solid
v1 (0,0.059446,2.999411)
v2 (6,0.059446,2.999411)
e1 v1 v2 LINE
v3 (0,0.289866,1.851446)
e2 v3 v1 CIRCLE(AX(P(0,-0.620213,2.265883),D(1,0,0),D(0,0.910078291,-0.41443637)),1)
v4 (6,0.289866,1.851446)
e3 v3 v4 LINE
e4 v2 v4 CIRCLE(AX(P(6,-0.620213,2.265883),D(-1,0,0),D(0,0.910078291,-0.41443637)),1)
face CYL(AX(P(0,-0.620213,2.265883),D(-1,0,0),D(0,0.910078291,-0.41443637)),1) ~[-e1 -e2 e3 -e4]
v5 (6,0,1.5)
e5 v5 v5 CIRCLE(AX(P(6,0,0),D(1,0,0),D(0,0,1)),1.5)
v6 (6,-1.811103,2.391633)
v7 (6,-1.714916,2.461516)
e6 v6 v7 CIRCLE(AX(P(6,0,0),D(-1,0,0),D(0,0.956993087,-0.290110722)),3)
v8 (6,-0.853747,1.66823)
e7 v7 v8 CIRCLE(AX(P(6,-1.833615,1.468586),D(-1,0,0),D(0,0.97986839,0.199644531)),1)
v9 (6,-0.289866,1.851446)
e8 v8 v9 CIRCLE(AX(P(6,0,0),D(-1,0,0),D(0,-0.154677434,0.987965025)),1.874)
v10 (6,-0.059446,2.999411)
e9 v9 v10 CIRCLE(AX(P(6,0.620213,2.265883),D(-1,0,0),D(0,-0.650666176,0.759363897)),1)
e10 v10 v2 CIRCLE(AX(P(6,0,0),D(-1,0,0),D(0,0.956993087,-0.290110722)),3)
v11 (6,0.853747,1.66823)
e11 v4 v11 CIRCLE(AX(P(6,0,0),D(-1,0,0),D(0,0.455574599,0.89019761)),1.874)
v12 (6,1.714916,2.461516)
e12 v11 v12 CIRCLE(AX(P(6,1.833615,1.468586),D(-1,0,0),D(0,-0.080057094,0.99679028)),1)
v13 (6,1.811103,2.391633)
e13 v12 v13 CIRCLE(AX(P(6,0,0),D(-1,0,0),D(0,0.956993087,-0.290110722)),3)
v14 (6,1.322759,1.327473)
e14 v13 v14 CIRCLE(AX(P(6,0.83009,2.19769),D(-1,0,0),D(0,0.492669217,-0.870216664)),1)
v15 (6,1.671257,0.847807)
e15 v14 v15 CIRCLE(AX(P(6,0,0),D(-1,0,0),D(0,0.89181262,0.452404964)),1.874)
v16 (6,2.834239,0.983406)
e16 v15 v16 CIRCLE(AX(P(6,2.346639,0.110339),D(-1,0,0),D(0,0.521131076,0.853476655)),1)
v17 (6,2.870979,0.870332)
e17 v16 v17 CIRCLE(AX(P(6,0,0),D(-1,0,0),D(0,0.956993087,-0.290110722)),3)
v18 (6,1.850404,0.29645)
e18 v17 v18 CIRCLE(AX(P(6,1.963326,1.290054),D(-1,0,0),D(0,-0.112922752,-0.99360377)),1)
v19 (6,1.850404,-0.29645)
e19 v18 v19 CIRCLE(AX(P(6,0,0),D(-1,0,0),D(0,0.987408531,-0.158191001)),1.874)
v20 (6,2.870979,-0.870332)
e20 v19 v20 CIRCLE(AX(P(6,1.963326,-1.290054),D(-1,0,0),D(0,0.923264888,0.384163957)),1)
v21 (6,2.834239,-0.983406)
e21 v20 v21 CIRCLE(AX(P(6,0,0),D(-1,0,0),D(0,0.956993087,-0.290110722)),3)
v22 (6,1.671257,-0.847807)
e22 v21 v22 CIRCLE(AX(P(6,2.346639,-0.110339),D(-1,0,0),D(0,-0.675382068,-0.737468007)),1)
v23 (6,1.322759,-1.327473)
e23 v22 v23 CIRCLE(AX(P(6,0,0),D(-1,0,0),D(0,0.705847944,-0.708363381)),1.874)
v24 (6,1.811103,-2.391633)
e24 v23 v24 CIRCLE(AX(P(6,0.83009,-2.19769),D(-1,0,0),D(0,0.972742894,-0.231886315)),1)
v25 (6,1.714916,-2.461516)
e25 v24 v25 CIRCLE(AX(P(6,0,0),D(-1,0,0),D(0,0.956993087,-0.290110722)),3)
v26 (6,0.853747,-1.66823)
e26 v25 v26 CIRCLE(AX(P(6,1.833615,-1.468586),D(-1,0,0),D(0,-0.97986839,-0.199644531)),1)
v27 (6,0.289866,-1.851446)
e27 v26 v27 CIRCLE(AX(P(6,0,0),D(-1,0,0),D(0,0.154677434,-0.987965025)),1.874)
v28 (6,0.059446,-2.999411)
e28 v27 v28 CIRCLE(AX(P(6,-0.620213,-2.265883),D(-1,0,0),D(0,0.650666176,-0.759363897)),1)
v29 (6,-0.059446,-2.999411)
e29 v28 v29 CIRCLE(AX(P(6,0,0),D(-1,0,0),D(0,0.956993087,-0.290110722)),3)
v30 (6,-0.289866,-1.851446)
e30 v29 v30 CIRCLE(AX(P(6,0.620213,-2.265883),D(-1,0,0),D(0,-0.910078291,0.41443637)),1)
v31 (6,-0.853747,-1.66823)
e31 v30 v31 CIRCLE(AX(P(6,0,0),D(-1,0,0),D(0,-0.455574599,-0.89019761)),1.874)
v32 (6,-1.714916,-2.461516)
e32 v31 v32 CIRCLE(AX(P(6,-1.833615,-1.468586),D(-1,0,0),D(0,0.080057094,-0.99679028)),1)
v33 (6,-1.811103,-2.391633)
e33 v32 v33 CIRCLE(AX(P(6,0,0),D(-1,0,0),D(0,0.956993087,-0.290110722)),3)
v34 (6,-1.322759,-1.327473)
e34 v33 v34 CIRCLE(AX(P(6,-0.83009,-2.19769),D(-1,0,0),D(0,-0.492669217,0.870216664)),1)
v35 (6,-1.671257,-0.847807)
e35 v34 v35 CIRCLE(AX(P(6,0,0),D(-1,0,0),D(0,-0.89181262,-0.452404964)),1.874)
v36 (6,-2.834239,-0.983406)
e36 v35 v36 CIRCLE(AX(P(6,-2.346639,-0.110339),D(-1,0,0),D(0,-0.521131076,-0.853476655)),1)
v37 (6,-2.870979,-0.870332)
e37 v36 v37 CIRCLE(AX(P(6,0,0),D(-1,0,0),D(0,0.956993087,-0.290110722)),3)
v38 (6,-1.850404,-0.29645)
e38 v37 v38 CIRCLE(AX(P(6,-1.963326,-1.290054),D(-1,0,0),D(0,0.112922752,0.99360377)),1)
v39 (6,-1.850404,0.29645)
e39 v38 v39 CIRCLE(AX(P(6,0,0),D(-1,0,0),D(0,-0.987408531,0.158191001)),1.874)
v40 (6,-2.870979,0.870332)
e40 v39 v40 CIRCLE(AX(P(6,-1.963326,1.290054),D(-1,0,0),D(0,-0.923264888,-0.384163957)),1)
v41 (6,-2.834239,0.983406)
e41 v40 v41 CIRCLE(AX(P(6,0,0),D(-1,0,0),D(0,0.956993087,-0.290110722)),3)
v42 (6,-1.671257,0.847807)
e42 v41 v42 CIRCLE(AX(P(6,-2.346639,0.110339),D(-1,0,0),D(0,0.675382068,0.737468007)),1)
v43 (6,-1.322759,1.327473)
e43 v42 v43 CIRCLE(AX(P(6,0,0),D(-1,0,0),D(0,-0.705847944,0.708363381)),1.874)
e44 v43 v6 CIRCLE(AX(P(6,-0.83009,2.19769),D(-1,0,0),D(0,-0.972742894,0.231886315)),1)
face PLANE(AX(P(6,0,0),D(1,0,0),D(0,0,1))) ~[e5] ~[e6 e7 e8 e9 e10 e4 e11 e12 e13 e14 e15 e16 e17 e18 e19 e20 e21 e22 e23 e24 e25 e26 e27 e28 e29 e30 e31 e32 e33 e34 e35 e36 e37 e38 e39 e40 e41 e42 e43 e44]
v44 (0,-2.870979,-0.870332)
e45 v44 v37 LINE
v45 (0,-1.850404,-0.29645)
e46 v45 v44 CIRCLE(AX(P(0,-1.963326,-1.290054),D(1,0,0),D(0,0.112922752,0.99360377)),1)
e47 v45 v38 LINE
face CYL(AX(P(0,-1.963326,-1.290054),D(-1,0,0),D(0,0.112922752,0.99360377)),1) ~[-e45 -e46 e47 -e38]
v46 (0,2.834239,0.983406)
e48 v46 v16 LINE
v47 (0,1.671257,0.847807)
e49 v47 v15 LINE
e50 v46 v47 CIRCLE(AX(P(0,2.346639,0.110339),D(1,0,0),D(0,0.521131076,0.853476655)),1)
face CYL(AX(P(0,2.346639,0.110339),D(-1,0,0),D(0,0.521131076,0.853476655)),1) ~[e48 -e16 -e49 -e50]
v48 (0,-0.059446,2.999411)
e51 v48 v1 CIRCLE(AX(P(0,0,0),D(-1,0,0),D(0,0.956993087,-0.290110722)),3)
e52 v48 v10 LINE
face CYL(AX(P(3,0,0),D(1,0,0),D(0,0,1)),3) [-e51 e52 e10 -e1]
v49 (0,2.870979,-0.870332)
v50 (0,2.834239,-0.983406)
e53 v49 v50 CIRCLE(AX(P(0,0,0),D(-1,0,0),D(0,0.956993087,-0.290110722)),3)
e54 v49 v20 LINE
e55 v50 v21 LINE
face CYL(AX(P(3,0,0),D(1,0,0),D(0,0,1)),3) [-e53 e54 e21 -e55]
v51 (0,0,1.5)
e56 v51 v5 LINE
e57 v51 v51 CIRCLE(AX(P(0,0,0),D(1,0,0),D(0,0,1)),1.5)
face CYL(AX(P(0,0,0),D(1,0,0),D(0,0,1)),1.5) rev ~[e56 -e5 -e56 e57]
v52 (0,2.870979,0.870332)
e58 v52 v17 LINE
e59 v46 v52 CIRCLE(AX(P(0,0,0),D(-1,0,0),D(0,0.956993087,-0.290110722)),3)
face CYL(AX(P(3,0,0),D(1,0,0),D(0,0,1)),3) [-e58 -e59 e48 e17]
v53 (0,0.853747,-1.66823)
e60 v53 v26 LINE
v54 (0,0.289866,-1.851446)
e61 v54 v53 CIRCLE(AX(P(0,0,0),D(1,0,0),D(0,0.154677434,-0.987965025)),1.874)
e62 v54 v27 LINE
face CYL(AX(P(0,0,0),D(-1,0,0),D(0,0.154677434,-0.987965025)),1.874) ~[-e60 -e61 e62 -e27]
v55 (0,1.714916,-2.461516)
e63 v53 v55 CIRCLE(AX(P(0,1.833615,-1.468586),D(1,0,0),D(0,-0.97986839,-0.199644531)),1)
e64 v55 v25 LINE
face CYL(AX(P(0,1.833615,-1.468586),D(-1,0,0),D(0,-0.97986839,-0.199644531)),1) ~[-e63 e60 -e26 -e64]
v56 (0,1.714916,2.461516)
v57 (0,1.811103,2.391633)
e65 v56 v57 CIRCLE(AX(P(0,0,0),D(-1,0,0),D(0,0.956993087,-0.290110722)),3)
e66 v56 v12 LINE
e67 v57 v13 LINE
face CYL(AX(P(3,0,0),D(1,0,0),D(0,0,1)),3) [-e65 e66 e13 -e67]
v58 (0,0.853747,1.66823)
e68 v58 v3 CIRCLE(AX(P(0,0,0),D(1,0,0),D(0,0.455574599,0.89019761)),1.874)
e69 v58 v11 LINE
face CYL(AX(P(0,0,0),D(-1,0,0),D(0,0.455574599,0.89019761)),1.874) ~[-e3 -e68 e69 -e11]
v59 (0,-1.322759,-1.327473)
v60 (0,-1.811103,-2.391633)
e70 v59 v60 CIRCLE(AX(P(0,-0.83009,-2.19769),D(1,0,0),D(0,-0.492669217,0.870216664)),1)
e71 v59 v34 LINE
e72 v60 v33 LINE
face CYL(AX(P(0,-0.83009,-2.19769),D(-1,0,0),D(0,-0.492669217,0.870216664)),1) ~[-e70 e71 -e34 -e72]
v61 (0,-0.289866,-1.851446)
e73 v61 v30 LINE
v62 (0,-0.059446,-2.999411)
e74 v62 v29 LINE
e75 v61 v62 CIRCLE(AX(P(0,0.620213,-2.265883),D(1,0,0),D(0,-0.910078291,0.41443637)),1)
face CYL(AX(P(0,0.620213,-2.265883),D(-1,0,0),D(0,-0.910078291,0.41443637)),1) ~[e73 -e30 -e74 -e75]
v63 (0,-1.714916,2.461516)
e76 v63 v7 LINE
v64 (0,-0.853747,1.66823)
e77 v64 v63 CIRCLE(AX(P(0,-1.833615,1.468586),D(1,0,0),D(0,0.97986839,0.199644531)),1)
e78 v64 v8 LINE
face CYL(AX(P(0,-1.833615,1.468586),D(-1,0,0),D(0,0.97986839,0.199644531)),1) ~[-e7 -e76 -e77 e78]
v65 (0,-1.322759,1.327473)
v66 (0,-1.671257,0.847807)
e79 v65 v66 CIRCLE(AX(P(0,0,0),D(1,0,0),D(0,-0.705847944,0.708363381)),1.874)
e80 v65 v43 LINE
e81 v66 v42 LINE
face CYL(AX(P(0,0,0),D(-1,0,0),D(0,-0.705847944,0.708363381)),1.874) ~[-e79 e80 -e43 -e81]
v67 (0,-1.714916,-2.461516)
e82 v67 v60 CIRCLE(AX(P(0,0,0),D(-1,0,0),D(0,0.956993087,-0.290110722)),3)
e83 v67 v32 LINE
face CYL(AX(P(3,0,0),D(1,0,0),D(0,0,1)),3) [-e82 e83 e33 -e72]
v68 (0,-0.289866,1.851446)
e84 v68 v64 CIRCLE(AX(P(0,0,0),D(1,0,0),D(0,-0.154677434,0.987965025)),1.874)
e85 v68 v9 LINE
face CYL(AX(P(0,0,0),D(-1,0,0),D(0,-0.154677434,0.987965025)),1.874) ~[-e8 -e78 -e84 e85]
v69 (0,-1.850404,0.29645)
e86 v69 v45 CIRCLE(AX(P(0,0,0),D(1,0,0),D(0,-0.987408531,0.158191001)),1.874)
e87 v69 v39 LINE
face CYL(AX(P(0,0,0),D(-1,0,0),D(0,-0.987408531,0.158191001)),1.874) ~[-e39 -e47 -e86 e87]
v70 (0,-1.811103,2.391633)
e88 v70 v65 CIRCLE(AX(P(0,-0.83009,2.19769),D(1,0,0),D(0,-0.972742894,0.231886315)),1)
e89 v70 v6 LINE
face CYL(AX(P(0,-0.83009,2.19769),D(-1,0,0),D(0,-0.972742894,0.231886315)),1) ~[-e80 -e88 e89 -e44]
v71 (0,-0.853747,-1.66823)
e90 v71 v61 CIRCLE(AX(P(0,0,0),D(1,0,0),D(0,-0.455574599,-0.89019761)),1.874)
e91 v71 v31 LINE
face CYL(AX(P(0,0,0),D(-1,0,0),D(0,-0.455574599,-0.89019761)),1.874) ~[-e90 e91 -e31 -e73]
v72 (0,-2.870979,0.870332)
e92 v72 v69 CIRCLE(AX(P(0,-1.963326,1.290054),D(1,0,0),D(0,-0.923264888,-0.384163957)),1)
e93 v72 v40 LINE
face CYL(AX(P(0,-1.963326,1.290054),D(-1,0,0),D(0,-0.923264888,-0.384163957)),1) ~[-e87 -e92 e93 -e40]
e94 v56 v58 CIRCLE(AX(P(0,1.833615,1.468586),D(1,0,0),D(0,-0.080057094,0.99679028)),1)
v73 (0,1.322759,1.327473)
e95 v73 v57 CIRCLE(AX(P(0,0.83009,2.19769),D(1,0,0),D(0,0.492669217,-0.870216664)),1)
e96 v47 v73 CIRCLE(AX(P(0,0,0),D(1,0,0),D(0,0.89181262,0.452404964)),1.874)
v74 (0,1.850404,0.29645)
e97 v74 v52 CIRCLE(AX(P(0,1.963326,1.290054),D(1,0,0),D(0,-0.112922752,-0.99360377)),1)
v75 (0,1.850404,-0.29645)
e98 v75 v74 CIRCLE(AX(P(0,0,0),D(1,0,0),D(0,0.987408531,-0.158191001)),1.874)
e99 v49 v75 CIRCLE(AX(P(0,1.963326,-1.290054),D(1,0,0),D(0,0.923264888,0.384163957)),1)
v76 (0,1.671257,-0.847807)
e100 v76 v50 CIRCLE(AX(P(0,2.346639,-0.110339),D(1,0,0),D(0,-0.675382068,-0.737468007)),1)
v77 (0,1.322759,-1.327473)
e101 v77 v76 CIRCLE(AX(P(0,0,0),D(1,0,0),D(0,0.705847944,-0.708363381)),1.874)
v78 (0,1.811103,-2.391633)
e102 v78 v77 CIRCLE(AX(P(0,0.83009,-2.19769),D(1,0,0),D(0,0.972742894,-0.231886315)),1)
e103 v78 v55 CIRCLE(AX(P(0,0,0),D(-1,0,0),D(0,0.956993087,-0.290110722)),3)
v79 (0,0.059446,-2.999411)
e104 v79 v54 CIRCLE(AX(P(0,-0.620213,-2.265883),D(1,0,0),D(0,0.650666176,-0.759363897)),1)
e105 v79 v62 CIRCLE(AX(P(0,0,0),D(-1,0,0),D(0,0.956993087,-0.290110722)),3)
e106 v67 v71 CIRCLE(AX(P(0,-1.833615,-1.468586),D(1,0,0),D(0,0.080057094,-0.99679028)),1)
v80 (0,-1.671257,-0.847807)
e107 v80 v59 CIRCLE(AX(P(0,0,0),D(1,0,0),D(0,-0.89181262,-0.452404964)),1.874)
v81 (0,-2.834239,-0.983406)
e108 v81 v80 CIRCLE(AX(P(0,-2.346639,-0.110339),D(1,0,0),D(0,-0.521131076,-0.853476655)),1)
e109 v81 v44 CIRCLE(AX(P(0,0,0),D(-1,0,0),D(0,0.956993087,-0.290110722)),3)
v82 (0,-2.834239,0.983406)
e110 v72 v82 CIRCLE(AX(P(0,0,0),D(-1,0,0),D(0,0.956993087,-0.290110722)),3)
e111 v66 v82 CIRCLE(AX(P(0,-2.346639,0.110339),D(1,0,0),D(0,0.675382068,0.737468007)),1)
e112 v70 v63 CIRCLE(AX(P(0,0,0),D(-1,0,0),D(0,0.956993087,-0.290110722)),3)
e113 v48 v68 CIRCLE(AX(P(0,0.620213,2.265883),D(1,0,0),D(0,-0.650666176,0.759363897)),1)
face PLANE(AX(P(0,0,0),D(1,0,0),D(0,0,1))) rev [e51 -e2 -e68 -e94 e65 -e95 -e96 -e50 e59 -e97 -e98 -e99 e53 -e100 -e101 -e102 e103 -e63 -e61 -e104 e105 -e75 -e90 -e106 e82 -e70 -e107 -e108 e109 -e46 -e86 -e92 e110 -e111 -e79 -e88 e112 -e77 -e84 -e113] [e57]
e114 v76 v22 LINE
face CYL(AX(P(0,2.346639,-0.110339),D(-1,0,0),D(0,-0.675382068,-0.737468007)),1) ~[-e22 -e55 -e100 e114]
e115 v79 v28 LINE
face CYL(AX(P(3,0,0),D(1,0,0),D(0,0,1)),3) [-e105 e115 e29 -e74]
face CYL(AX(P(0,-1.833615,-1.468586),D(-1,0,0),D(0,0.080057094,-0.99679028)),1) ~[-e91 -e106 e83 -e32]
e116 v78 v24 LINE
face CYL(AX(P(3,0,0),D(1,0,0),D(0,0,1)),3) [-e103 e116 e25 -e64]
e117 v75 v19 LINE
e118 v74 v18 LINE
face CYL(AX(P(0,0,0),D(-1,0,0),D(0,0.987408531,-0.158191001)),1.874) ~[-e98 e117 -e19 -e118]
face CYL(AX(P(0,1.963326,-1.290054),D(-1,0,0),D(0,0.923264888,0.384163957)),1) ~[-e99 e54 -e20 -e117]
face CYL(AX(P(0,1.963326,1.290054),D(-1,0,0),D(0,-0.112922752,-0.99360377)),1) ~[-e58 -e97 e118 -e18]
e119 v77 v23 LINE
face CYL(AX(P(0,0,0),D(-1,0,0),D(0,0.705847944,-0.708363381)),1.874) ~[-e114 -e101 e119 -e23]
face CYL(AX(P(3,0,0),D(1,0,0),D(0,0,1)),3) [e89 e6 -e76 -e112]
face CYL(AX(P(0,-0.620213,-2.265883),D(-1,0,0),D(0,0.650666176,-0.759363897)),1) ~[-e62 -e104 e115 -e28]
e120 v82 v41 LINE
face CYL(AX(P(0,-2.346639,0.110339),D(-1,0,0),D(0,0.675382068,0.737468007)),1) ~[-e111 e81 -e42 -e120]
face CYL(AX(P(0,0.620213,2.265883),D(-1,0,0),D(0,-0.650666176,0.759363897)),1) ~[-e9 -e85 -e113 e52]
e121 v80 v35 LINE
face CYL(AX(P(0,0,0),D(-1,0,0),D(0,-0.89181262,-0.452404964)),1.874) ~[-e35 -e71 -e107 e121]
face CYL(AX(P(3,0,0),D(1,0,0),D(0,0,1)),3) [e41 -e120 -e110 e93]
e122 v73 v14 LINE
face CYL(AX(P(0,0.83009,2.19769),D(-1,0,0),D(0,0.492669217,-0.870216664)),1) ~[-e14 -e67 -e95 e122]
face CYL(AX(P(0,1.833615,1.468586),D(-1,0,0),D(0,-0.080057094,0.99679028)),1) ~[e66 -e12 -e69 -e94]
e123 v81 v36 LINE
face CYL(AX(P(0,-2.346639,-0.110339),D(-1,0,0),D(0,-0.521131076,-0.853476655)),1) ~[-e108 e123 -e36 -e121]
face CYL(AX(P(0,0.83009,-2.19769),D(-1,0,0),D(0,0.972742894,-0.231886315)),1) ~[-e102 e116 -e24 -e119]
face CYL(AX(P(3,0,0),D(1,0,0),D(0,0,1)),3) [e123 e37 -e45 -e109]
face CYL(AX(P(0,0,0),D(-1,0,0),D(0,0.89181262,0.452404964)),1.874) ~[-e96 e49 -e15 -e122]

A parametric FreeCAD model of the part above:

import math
import FreeCAD as App
import Part
import Sketcher
Q = App.Units.Quantity


def add_polygon(sketch, points):
    """Adds a closed chain of lines whose ends are joined by coincident constraints."""
    first, n = sketch.GeometryCount, len(points)
    for a, b in zip(points, points[1:] + points[:1]):
        sketch.addGeometry(Part.LineSegment(App.Vector(*a, 0), App.Vector(*b, 0)), False)
    for i in range(n):
        sketch.addConstraint(Sketcher.Constraint("Coincident", first + i, 2, first + (i + 1) % n, 1))

doc = App.newDocument("Part")
body = doc.addObject("PartDesign::Body", "Body")

# Sketch on XZ plane
sketch1 = doc.addObject("Sketcher::SketchObject", "Sketch")
body.addObject(sketch1)
sketch1.AttachmentSupport = (doc.XZ_Plane, [""])
sketch1.MapMode = "FlatFace"
add_polygon(sketch1, [(0, -3), (0, 0), (6, 0), (6, -3)])  # lines 0-3
sketch1.addConstraint([
    Sketcher.Constraint("Vertical", 0),
    Sketcher.Constraint("Horizontal", 1),
    Sketcher.Constraint("Vertical", 2),
    Sketcher.Constraint("Horizontal", 3),
    Sketcher.Constraint("Coincident", 0, 2, -1, 1),
    Sketcher.Constraint("DistanceX", 1, 1, 1, 2, Q("6 mm")),
    Sketcher.Constraint("DistanceY", 0, 1, 0, 2, Q("3 mm")),
])
revolution = doc.addObject("PartDesign::Revolution", "Revolution")
body.addObject(revolution)
revolution.Profile = sketch1
revolution.ReferenceAxis = (sketch1, ["H_Axis"])
revolution.Angle = 360

# Sketch on YZ plane
sketch2 = doc.addObject("Sketcher::SketchObject", "Sketch001")
body.addObject(sketch2)
sketch2.AttachmentSupport = (doc.YZ_Plane, [""])
sketch2.MapMode = "FlatFace"
sketch2.addGeometry([
    Part.ArcOfCircle(Part.Circle(App.Vector(0, 0, 0), App.Vector(0, 0, 1), 1.9), math.radians(-9.1), math.radians(9.1)),
    Part.ArcOfCircle(Part.Circle(App.Vector(2, -1.3, 0), App.Vector(0, 0, 1), 1), math.radians(23), math.radians(96)),
    Part.ArcOfCircle(Part.Circle(App.Vector(0, 0, 0), App.Vector(0, 0, 1), 3), math.radians(-17), math.radians(17)),
    Part.ArcOfCircle(Part.Circle(App.Vector(2, 1.3, 0), App.Vector(0, 0, 1), 1), math.radians(-96), math.radians(-23)),
], False)
sketch2.addConstraint([
    Sketcher.Constraint("Coincident", 0, 1, 1, 2),
    Sketcher.Constraint("Coincident", 1, 1, 2, 1),
    Sketcher.Constraint("Coincident", 2, 2, 3, 2),
    Sketcher.Constraint("Coincident", 3, 1, 0, 2),
    Sketcher.Constraint("Coincident", 0, 3, -1, 1),
    Sketcher.Constraint("Coincident", 2, 3, -1, 1),
    Sketcher.Constraint("Equal", 1, 3),
    Sketcher.Constraint("Symmetric", 1, 3, 3, 3, -1),
    Sketcher.Constraint("Radius", 1, Q("1 mm")),
    Sketcher.Constraint("Radius", 0, Q("1.874 mm")),
    Sketcher.Constraint("Radius", 2, Q("3.0254 mm")),
    Sketcher.Constraint("DistanceY", 0, 1, 3, 1, Q("0.5929 mm")),
    Sketcher.Constraint("DistanceX", -1, 1, 1, 1, Q("2.886591 mm")),
])
pocket1 = doc.addObject("PartDesign::Pocket", "Pocket")
body.addObject(pocket1)
pocket1.Profile = sketch2
pocket1.Type = "ThroughAll"
pocket1.Reversed = True
doc.recompute()

polarpattern = doc.addObject("PartDesign::PolarPattern", "PolarPattern")
body.addObject(polarpattern)
polarpattern.Originals = [pocket1]
polarpattern.Axis = (doc.X_Axis, [""])
polarpattern.Angle = 360
polarpattern.Occurrences = 10
body.Tip = polarpattern

# Sketch on YZ plane
sketch3 = doc.addObject("Sketcher::SketchObject", "Sketch002")
body.addObject(sketch3)
sketch3.AttachmentSupport = (doc.YZ_Plane, [""])
sketch3.MapMode = "FlatFace"
sketch3.addGeometry(Part.Circle(App.Vector(0, 0, 0), App.Vector(0, 0, 1), 1.5), False)
sketch3.addConstraint([
    Sketcher.Constraint("Coincident", 0, 3, -1, 1),
    Sketcher.Constraint("Diameter", 0, Q("3 mm")),
])
pocket2 = doc.addObject("PartDesign::Pocket", "Pocket001")
body.addObject(pocket2)
pocket2.Profile = sketch3
pocket2.Length = 100.000102
pocket2.Midplane = True

doc.recompute()
